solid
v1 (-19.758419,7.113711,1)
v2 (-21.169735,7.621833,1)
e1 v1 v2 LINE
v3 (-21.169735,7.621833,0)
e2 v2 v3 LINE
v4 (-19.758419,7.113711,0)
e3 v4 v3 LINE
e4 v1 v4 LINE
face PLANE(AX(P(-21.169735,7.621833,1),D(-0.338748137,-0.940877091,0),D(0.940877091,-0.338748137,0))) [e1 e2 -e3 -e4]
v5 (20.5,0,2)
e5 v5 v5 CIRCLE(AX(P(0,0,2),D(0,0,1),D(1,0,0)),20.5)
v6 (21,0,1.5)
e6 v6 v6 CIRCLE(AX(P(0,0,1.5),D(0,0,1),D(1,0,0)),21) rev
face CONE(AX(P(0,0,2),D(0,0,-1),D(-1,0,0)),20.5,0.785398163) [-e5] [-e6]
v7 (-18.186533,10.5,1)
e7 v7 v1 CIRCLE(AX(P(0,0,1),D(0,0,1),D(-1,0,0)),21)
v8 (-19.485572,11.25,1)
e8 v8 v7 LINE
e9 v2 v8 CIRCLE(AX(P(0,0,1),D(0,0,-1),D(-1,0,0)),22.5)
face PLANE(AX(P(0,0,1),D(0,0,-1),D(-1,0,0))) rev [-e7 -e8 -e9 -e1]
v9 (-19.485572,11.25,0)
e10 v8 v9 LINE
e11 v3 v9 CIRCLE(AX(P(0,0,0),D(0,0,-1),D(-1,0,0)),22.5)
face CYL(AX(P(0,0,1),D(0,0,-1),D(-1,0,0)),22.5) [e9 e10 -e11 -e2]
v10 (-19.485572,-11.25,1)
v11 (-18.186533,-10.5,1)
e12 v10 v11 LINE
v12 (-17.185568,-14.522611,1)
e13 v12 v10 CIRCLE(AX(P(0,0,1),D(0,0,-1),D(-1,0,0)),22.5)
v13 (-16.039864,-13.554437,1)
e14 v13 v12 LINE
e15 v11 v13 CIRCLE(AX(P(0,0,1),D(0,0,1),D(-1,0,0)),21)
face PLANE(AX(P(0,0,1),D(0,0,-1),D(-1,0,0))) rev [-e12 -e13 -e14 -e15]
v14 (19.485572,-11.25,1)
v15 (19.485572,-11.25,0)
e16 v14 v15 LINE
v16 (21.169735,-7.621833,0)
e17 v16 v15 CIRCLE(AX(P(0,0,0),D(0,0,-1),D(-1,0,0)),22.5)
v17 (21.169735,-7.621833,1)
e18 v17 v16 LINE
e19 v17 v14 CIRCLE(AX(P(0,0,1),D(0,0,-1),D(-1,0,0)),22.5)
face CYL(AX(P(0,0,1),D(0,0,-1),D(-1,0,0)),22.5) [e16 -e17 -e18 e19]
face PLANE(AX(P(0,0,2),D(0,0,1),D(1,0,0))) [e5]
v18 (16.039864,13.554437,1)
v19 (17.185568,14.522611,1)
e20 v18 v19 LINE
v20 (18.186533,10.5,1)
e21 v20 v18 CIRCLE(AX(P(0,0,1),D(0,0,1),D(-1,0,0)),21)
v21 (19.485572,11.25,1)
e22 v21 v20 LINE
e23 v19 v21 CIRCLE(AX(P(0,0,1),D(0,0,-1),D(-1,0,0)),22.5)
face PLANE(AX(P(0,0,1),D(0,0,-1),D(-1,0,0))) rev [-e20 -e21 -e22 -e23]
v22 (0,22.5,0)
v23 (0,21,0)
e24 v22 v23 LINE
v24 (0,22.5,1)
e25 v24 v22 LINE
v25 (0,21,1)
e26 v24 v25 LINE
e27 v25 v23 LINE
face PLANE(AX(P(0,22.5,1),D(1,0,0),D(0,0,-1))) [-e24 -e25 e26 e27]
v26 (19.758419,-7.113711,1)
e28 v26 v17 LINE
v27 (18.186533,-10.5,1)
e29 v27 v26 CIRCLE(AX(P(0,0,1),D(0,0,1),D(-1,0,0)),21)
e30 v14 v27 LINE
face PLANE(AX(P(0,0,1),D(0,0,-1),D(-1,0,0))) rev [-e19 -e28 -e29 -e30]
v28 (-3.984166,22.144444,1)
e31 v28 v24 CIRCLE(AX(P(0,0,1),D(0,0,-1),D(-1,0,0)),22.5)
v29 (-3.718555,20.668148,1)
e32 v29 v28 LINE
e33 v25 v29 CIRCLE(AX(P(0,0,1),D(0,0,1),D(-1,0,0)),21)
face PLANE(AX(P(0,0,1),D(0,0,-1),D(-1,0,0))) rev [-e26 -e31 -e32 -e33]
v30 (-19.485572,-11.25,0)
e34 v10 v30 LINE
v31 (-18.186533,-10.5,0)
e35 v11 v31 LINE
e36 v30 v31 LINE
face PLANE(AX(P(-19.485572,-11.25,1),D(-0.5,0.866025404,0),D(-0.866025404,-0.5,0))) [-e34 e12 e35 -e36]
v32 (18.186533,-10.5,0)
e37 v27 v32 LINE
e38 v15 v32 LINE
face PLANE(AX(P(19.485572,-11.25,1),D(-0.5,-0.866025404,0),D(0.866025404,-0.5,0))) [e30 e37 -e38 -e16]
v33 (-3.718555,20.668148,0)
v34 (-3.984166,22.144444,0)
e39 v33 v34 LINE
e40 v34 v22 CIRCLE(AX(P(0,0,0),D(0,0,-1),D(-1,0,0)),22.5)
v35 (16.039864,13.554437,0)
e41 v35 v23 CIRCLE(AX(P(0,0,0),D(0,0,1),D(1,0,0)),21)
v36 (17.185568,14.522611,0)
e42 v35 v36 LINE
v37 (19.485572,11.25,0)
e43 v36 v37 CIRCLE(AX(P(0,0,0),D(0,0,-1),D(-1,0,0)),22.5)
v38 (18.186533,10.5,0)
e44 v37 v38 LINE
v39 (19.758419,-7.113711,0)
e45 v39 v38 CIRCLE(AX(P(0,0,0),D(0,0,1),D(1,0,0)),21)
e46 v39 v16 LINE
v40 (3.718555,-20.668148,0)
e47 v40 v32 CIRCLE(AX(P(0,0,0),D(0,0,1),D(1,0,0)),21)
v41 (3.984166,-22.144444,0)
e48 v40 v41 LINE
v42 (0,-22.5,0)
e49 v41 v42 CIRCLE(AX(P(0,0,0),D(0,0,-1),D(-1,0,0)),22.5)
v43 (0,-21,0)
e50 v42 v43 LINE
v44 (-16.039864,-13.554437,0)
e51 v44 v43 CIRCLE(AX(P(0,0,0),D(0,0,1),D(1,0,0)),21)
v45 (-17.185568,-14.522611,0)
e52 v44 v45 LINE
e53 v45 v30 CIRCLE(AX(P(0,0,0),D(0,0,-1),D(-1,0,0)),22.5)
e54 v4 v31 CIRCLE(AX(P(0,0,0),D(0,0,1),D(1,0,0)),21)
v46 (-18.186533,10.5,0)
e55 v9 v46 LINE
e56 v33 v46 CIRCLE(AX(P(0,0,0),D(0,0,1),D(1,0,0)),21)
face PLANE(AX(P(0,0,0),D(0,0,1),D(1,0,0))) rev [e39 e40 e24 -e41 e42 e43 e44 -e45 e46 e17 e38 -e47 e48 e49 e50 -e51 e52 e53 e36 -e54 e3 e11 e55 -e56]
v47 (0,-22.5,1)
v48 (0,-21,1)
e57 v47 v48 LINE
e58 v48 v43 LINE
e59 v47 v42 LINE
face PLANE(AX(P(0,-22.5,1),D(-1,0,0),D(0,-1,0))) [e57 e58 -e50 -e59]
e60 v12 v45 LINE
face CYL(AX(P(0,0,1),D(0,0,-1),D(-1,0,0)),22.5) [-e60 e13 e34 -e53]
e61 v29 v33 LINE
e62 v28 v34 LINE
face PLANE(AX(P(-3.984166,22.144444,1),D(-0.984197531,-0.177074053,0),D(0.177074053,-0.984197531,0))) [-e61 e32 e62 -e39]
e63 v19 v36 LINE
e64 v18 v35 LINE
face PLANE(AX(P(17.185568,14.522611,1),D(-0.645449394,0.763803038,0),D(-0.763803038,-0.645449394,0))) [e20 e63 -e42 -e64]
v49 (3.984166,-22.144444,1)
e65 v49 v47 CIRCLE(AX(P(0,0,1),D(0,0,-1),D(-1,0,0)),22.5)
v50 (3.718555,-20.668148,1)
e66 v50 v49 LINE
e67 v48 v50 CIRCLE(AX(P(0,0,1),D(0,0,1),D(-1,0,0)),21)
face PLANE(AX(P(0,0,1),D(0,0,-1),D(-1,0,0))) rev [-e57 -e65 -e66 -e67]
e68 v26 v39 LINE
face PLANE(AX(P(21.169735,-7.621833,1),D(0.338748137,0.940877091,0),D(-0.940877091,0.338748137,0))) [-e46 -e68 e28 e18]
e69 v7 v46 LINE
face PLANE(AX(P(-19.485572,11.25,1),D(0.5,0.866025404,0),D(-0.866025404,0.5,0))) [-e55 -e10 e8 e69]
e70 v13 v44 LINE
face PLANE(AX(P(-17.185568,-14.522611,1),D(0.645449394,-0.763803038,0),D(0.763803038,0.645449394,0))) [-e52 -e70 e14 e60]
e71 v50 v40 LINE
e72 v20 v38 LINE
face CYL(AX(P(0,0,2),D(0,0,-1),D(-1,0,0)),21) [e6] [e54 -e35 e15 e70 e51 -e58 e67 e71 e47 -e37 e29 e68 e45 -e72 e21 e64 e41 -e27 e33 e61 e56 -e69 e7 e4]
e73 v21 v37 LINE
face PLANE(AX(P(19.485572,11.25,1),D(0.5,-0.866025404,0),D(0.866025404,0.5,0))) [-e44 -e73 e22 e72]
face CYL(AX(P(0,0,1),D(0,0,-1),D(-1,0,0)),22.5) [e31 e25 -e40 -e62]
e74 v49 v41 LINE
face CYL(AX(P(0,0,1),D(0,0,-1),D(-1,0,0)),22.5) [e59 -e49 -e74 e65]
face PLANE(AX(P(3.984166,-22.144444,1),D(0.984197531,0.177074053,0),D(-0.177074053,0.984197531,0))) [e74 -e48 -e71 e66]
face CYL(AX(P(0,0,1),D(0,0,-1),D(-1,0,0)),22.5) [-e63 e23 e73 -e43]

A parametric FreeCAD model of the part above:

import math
import FreeCAD as App
import Part
import Sketcher
Q = App.Units.Quantity


def edges_at(feature, points):
    """Names of the edges that pass closest to the given points."""
    edges = feature.Shape.Edges
    near = lambda p: min(range(len(edges)), key=lambda i: edges[i].distToShape(Part.Vertex(*p))[0])
    return sorted({f"Edge{near(p) + 1}" for p in points})

doc = App.newDocument("Part")
params = doc.addObject("Spreadsheet::Sheet", "Params")
for row, (alias, value) in enumerate([
    ("sketch1_diameter", "42 mm"),
    ("pad1_length", "2 mm"),
    ("sketch2_radius", "21 mm"),
    ("sketch2_radius2", "22.5 mm"),
    ("pad2_length", "1 mm"),
    ("chamfer_size", "0.5 mm"),
], start=1):
    params.set(f"A{row}", alias)
    params.set(f"B{row}", "=" + value)
    params.setAlias(f"B{row}", alias)

body = doc.addObject("PartDesign::Body", "Body")

# Sketch on XY plane
sketch1 = body.newObject("Sketcher::SketchObject", "Sketch")
sketch1.AttachmentSupport = (doc.getObject("XY_Plane"), [""])
sketch1.MapMode = "FlatFace"
sketch1.addGeometry(Part.Circle(App.Vector(0, 0, 0), App.Vector(0, 0, 1), 21), False)
sketch1.addConstraint(Sketcher.Constraint("Coincident", 0, 3, -1, 1))
sketch1.addConstraint(Sketcher.Constraint("Diameter", 0, 42.0))
sketch1.setExpression("Constraints[1]", "Params.sketch1_diameter")
pad1 = body.newObject("PartDesign::Pad", "Pad")
pad1.Profile = sketch1
pad1.setExpression("Length", "Params.pad1_length")

# Sketch on XY plane
sketch2 = body.newObject("Sketcher::SketchObject", "Sketch001")
sketch2.AttachmentSupport = (doc.getObject("XY_Plane"), [""])
sketch2.MapMode = "FlatFace"
sketch2.addGeometry(Part.LineSegment(App.Vector(0, 22.5, 0), App.Vector(0, 21, 0)), False)
sketch2.addGeometry(Part.ArcOfCircle(Part.Circle(App.Vector(0, 0, 0), App.Vector(0, 0, 1), 21), math.radians(90), math.radians(100.2)), False)
sketch2.addGeometry(Part.LineSegment(App.Vector(-3.7, 20.7, 0), App.Vector(-4, 22.1, 0)), False)
sketch2.addGeometry(Part.ArcOfCircle(Part.Circle(App.Vector(0, 0, 0), App.Vector(0, 0, 1), 22.5), math.radians(90), math.radians(100.2)), False)
sketch2.addGeometry(Part.LineSegment(App.Vector(-19.5, 11.2, 0), App.Vector(-18.2, 10.5, 0)), False)
sketch2.addGeometry(Part.ArcOfCircle(Part.Circle(App.Vector(0, 0, 0), App.Vector(0, 0, 1), 21), math.radians(150), math.radians(160.2)), False)
sketch2.addGeometry(Part.LineSegment(App.Vector(-19.8, 7.1, 0), App.Vector(-21.2, 7.6, 0)), False)
sketch2.addGeometry(Part.ArcOfCircle(Part.Circle(App.Vector(0, 0, 0), App.Vector(0, 0, 1), 22.5), math.radians(150), math.radians(160.2)), False)
sketch2.addGeometry(Part.LineSegment(App.Vector(-19.5, -11.2, 0), App.Vector(-18.2, -10.5, 0)), False)
sketch2.addGeometry(Part.ArcOfCircle(Part.Circle(App.Vector(0, 0, 0), App.Vector(0, 0, 1), 21), math.radians(-150), math.radians(-139.8)), False)
sketch2.addGeometry(Part.LineSegment(App.Vector(-16, -13.6, 0), App.Vector(-17.2, -14.5, 0)), False)
sketch2.addGeometry(Part.ArcOfCircle(Part.Circle(App.Vector(0, 0, 0), App.Vector(0, 0, 1), 22.5), math.radians(-150), math.radians(-139.8)), False)
sketch2.addGeometry(Part.LineSegment(App.Vector(0, -22.5, 0), App.Vector(0, -21, 0)), False)
sketch2.addGeometry(Part.ArcOfCircle(Part.Circle(App.Vector(0, 0, 0), App.Vector(0, 0, 1), 21), math.radians(-90), math.radians(-79.8)), False)
sketch2.addGeometry(Part.LineSegment(App.Vector(3.7, -20.7, 0), App.Vector(4, -22.1, 0)), False)
sketch2.addGeometry(Part.ArcOfCircle(Part.Circle(App.Vector(0, 0, 0), App.Vector(0, 0, 1), 22.5), math.radians(-90), math.radians(-79.8)), False)
sketch2.addGeometry(Part.LineSegment(App.Vector(19.5, -11.2, 0), App.Vector(18.2, -10.5, 0)), False)
sketch2.addGeometry(Part.ArcOfCircle(Part.Circle(App.Vector(0, 0, 0), App.Vector(0, 0, 1), 21), math.radians(-30), math.radians(-19.8)), False)
sketch2.addGeometry(Part.LineSegment(App.Vector(19.8, -7.1, 0), App.Vector(21.2, -7.6, 0)), False)
sketch2.addGeometry(Part.ArcOfCircle(Part.Circle(App.Vector(0, 0, 0), App.Vector(0, 0, 1), 22.5), math.radians(-30), math.radians(-19.8)), False)
sketch2.addGeometry(Part.LineSegment(App.Vector(19.5, 11.2, 0), App.Vector(18.2, 10.5, 0)), False)
sketch2.addGeometry(Part.ArcOfCircle(Part.Circle(App.Vector(0, 0, 0), App.Vector(0, 0, 1), 21), math.radians(30), math.radians(40.2)), False)
sketch2.addGeometry(Part.LineSegment(App.Vector(16, 13.6, 0), App.Vector(17.2, 14.5, 0)), False)
sketch2.addGeometry(Part.ArcOfCircle(Part.Circle(App.Vector(0, 0, 0), App.Vector(0, 0, 1), 22.5), math.radians(30), math.radians(40.2)), False)
sketch2.addConstraint(Sketcher.Constraint("Coincident", 0, 2, 1, 1))
sketch2.addConstraint(Sketcher.Constraint("Coincident", 1, 2, 2, 1))
sketch2.addConstraint(Sketcher.Constraint("Coincident", 2, 2, 3, 2))
sketch2.addConstraint(Sketcher.Constraint("Coincident", 3, 1, 0, 1))
sketch2.addConstraint(Sketcher.Constraint("Coincident", 4, 2, 5, 1))
sketch2.addConstraint(Sketcher.Constraint("Coincident", 5, 2, 6, 1))
sketch2.addConstraint(Sketcher.Constraint("Coincident", 6, 2, 7, 2))
sketch2.addConstraint(Sketcher.Constraint("Coincident", 7, 1, 4, 1))
sketch2.addConstraint(Sketcher.Constraint("Coincident", 8, 2, 9, 1))
sketch2.addConstraint(Sketcher.Constraint("Coincident", 9, 2, 10, 1))
sketch2.addConstraint(Sketcher.Constraint("Coincident", 10, 2, 11, 2))
sketch2.addConstraint(Sketcher.Constraint("Coincident", 11, 1, 8, 1))
sketch2.addConstraint(Sketcher.Constraint("Coincident", 12, 2, 13, 1))
sketch2.addConstraint(Sketcher.Constraint("Coincident", 13, 2, 14, 1))
sketch2.addConstraint(Sketcher.Constraint("Coincident", 14, 2, 15, 2))
sketch2.addConstraint(Sketcher.Constraint("Coincident", 15, 1, 12, 1))
sketch2.addConstraint(Sketcher.Constraint("Coincident", 16, 2, 17, 1))
sketch2.addConstraint(Sketcher.Constraint("Coincident", 17, 2, 18, 1))
sketch2.addConstraint(Sketcher.Constraint("Coincident", 18, 2, 19, 2))
sketch2.addConstraint(Sketcher.Constraint("Coincident", 19, 1, 16, 1))
sketch2.addConstraint(Sketcher.Constraint("Coincident", 20, 2, 21, 1))
sketch2.addConstraint(Sketcher.Constraint("Coincident", 21, 2, 22, 1))
sketch2.addConstraint(Sketcher.Constraint("Coincident", 22, 2, 23, 2))
sketch2.addConstraint(Sketcher.Constraint("Coincident", 23, 1, 20, 1))
sketch2.addConstraint(Sketcher.Constraint("Vertical", 0))
sketch2.addConstraint(Sketcher.Constraint("Vertical", 12))
sketch2.addConstraint(Sketcher.Constraint("Coincident", 1, 3, -1, 1))
sketch2.addConstraint(Sketcher.Constraint("Coincident", 3, 3, -1, 1))
sketch2.addConstraint(Sketcher.Constraint("Coincident", 5, 3, -1, 1))
sketch2.addConstraint(Sketcher.Constraint("Coincident", 7, 3, -1, 1))
sketch2.addConstraint(Sketcher.Constraint("Coincident", 9, 3, -1, 1))
sketch2.addConstraint(Sketcher.Constraint("Coincident", 11, 3, -1, 1))
sketch2.addConstraint(Sketcher.Constraint("Coincident", 13, 3, -1, 1))
sketch2.addConstraint(Sketcher.Constraint("Coincident", 15, 3, -1, 1))
sketch2.addConstraint(Sketcher.Constraint("Coincident", 17, 3, -1, 1))
sketch2.addConstraint(Sketcher.Constraint("Coincident", 19, 3, -1, 1))
sketch2.addConstraint(Sketcher.Constraint("Coincident", 21, 3, -1, 1))
sketch2.addConstraint(Sketcher.Constraint("Coincident", 23, 3, -1, 1))
sketch2.addConstraint(Sketcher.Constraint("Equal", 1, 5))
sketch2.addConstraint(Sketcher.Constraint("Equal", 3, 7))
sketch2.addConstraint(Sketcher.Constraint("Equal", 5, 9))
sketch2.addConstraint(Sketcher.Constraint("Equal", 7, 11))
sketch2.addConstraint(Sketcher.Constraint("Equal", 9, 13))
sketch2.addConstraint(Sketcher.Constraint("Equal", 11, 15))
sketch2.addConstraint(Sketcher.Constraint("Equal", 13, 17))
sketch2.addConstraint(Sketcher.Constraint("Equal", 15, 19))
sketch2.addConstraint(Sketcher.Constraint("Equal", 17, 21))
sketch2.addConstraint(Sketcher.Constraint("Equal", 19, 23))
sketch2.addConstraint(Sketcher.Constraint("PointOnObject", 0, 2, -2))
sketch2.addConstraint(Sketcher.Constraint("PointOnObject", 12, 2, -2))
sketch2.addConstraint(Sketcher.Constraint("Parallel", 2, 14))
sketch2.addConstraint(Sketcher.Constraint("Parallel", 4, 16))
sketch2.addConstraint(Sketcher.Constraint("Parallel", 6, 18))
sketch2.addConstraint(Sketcher.Constraint("Parallel", 8, 20))
sketch2.addConstraint(Sketcher.Constraint("Parallel", 10, 22))
sketch2.addConstraint(Sketcher.Constraint("Horizontal", 8, 2, 16, 2))
sketch2.addConstraint(Sketcher.Constraint("Horizontal", 11, 1, 19, 1))
sketch2.addConstraint(Sketcher.Constraint("Horizontal", 4, 2, 20, 2))
sketch2.addConstraint(Sketcher.Constraint("Vertical", 4, 2, 8, 2))
sketch2.addConstraint(Sketcher.Constraint("Radius", 1, 21.0))
sketch2.addConstraint(Sketcher.Constraint("Radius", 3, 22.5))
sketch2.addConstraint(Sketcher.Constraint("Angle", 4, Q("-30 deg")))
sketch2.addConstraint(Sketcher.Constraint("DistanceY", -1, 1, 4, 2, 10.5))
sketch2.addConstraint(Sketcher.Constraint("DistanceX", 6, 2, 4, 2, 2.983201))
sketch2.addConstraint(Sketcher.Constraint("DistanceX", 16, 2, 18, 2, 2.983201))
sketch2.addConstraint(Sketcher.Constraint("DistanceY", -1, 1, 1, 2, 20.668148))
sketch2.addConstraint(Sketcher.Constraint("DistanceX", 5, 2, -1, 1, 19.758419))
sketch2.addConstraint(Sketcher.Constraint("DistanceX", 10, 2, -1, 1, 17.185568))
sketch2.addConstraint(Sketcher.Constraint("DistanceY", 13, 2, -1, 1, 20.668148))
sketch2.addConstraint(Sketcher.Constraint("DistanceX", -1, 1, 22, 2, 17.185568))
sketch2.addConstraint(Sketcher.Constraint("DistanceX", 2, 2, 1, 2, 0.265611))
sketch2.addConstraint(Sketcher.Constraint("DistanceX", 8, 2, 9, 2, 2.14667))
sketch2.setExpression("Constraints[59]", "Params.sketch2_radius")
sketch2.setExpression("Constraints[60]", "Params.sketch2_radius2")
pad2 = body.newObject("PartDesign::Pad", "Pad001")
pad2.Profile = sketch2
pad2.setExpression("Length", "Params.pad2_length")
doc.recompute()

chamfer = body.newObject("PartDesign::Chamfer", "Chamfer")
chamfer.Base = (pad2, edges_at(pad2, [(-21, 0, 2)]))
chamfer.setExpression("Size", "Params.chamfer_size")

doc.recompute()
